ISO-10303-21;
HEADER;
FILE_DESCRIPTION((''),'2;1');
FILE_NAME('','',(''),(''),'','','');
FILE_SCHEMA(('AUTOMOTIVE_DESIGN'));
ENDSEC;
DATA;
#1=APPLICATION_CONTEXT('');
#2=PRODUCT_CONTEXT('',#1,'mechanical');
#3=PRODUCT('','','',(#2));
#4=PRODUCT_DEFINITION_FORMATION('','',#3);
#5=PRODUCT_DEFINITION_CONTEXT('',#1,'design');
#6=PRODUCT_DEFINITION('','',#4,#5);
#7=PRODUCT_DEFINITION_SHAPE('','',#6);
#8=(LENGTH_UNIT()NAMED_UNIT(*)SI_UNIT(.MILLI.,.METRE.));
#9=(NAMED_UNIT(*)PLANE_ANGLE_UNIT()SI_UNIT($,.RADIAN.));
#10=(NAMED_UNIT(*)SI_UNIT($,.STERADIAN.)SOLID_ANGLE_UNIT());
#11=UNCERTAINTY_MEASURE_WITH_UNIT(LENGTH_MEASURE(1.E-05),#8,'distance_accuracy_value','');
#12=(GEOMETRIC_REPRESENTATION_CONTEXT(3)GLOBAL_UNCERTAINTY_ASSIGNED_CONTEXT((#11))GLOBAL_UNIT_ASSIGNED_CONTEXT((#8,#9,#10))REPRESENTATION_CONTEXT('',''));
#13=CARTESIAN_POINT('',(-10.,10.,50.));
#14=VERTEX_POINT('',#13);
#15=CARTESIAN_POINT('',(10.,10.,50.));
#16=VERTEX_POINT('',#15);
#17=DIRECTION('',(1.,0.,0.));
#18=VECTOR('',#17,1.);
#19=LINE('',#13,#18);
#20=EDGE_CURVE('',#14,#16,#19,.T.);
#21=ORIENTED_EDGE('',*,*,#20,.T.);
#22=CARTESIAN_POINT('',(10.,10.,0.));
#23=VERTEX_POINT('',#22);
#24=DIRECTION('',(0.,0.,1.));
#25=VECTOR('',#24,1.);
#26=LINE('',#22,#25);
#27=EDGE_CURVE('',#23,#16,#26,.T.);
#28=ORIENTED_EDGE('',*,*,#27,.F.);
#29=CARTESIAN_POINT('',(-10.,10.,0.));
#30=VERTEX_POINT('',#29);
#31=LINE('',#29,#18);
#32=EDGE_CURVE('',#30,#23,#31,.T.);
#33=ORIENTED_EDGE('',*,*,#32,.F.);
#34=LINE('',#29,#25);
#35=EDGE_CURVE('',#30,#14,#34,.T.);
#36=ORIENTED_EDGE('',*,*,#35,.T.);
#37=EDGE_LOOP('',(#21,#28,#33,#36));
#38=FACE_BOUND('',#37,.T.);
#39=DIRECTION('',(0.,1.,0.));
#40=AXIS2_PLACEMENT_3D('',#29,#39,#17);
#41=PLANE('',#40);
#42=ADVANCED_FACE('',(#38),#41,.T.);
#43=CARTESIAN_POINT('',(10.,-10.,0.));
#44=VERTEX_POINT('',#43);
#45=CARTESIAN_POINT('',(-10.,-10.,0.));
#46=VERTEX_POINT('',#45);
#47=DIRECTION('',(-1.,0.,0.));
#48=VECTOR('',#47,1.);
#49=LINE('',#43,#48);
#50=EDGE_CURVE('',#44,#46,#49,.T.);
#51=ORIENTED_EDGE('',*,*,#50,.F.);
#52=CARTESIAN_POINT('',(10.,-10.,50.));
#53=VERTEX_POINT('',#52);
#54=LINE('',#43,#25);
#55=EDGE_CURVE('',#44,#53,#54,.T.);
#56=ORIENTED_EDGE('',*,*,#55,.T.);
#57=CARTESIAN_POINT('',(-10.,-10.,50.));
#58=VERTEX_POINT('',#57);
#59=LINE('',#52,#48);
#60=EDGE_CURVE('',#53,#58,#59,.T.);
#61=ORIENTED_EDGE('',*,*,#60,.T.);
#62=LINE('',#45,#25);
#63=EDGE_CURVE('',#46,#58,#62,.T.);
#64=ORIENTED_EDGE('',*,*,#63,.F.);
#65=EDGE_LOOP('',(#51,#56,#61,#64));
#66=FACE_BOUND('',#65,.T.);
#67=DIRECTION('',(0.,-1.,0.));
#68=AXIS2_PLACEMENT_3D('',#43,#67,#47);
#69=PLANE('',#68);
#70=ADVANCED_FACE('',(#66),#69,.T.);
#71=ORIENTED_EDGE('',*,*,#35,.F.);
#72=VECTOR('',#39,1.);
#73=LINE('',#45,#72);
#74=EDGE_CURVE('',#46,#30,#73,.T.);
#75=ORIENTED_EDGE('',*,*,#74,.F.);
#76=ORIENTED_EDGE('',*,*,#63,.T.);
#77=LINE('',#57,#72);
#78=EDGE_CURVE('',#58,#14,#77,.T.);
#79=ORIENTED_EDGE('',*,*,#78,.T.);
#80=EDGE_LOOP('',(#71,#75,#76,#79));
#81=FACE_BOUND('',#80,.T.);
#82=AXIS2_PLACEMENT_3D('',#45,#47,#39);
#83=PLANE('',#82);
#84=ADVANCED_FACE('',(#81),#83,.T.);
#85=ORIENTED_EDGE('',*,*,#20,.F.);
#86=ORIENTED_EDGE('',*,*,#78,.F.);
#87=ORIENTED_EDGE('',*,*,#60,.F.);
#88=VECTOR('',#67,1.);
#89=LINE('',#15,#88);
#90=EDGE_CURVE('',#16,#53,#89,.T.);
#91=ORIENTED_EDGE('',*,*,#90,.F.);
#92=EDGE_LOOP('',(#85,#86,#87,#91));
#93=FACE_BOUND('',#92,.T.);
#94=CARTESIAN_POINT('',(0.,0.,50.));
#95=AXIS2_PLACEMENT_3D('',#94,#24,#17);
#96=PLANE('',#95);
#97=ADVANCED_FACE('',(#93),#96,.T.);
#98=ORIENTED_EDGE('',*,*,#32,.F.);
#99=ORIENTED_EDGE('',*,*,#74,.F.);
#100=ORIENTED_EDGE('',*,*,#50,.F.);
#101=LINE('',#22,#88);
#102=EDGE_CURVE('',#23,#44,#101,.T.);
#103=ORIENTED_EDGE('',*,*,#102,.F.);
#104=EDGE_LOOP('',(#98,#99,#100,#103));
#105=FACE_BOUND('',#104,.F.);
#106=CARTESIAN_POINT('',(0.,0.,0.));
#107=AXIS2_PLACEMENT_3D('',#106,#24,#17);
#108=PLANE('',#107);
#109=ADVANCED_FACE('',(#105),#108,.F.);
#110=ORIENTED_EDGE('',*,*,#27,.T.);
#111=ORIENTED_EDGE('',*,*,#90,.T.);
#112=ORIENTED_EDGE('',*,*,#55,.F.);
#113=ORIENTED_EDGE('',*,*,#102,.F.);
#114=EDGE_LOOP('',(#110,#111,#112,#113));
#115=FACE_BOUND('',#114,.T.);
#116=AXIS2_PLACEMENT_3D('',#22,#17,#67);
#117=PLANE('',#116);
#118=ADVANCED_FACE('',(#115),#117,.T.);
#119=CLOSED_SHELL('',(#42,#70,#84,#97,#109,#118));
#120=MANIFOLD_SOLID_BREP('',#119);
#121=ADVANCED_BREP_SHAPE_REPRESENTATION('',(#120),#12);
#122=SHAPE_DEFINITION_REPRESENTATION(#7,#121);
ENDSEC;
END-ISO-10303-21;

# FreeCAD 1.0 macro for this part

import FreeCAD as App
import Part
import Sketcher
from FreeCAD import Vector

doc = App.newDocument("Part")
body = doc.addObject("PartDesign::Body", "Body")

# Sketch on XY plane
sketch1 = body.newObject("Sketcher::SketchObject", "Sketch")
sketch1.AttachmentSupport = (doc.getObject("XY_Plane"), [""])
sketch1.MapMode = "FlatFace"
sketch1.addGeometry([
    Part.LineSegment(Vector(10, 10, 0), Vector(-10, 10, 0)),
    Part.LineSegment(Vector(-10, 10, 0), Vector(-10, -10, 0)),
    Part.LineSegment(Vector(-10, -10, 0), Vector(10, -10, 0)),
    Part.LineSegment(Vector(10, -10, 0), Vector(10, 10, 0)),
], False)
sketch1.addConstraint([
    Sketcher.Constraint("Coincident", 0, 2, 1, 1),
    Sketcher.Constraint("Coincident", 1, 2, 2, 1),
    Sketcher.Constraint("Coincident", 2, 2, 3, 1),
    Sketcher.Constraint("Coincident", 3, 2, 0, 1),
    Sketcher.Constraint("Horizontal", 0),
    Sketcher.Constraint("Vertical", 1),
    Sketcher.Constraint("Horizontal", 2),
    Sketcher.Constraint("Vertical", 3),
    Sketcher.Constraint("Symmetric", 0, 2, 2, 2, -1, 1),
    Sketcher.Constraint("Equal", 2, 1),
    Sketcher.Constraint("DistanceX", 0, 2, 0, 1, 20.0),
])
pad1 = body.newObject("PartDesign::Pad", "Pad")
pad1.Profile = sketch1
pad1.Length = 50

doc.recompute()
